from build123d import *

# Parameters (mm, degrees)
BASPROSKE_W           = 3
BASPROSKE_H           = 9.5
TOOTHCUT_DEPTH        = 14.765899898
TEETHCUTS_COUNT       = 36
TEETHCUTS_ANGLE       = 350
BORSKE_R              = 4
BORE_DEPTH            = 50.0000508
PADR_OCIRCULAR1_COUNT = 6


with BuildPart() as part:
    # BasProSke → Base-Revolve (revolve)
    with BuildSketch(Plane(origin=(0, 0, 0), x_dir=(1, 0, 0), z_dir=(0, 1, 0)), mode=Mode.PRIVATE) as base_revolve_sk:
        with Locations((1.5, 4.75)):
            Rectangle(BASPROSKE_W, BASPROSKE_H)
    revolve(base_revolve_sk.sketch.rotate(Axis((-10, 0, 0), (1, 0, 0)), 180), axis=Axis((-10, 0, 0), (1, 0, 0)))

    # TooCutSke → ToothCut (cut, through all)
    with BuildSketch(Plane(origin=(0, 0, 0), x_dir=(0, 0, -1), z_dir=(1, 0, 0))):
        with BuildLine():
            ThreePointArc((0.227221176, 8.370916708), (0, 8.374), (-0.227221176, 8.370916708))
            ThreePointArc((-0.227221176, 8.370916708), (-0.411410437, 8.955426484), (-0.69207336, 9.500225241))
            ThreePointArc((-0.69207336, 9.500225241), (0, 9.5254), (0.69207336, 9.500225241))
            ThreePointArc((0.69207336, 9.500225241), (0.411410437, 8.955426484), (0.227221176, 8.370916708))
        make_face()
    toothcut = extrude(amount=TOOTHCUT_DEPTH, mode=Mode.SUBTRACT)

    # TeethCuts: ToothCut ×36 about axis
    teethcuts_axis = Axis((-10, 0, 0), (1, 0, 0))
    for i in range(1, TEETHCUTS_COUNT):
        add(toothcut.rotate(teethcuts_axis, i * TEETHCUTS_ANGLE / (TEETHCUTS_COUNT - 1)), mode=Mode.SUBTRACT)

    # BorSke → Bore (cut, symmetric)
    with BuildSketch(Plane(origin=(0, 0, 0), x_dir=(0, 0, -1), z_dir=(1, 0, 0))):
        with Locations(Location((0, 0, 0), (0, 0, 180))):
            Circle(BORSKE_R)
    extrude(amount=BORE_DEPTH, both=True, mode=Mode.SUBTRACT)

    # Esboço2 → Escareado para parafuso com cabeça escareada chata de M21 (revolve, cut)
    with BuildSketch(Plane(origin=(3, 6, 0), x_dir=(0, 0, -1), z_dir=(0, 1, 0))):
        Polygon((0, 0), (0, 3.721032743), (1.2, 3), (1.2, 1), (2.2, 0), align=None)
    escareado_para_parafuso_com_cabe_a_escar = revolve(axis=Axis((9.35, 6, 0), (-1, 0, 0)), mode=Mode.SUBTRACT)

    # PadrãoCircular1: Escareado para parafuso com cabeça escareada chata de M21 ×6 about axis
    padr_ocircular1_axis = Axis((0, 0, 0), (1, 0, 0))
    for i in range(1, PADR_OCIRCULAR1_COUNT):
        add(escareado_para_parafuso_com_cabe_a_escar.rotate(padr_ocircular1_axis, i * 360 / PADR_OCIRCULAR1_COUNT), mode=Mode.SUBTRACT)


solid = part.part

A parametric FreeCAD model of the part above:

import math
import FreeCAD as App
import Part
import Sketcher

V = App.Vector
Q = App.Units.Quantity

doc = App.newDocument("Part")
body = doc.addObject("PartDesign::Body", "Body")

# Sketch on XZ plane
sketch1 = body.newObject("Sketcher::SketchObject", "Sketch")
sketch1.AttachmentSupport = (doc.getObject("XZ_Plane"), [""])
sketch1.MapMode = "FlatFace"
sketch1.addGeometry([
    Part.LineSegment(V(0, -9.5, 0), V(0, 0, 0)),
    Part.LineSegment(V(0, 0, 0), V(3, 0, 0)),
    Part.LineSegment(V(3, 0, 0), V(3, -9.5, 0)),
    Part.LineSegment(V(3, -9.5, 0), V(0, -9.5, 0)),
], False)
sketch1.addConstraint([
    Sketcher.Constraint("Coincident", 0, 2, 1, 1),
    Sketcher.Constraint("Coincident", 1, 2, 2, 1),
    Sketcher.Constraint("Coincident", 2, 2, 3, 1),
    Sketcher.Constraint("Coincident", 3, 2, 0, 1),
    Sketcher.Constraint("Vertical", 0),
    Sketcher.Constraint("Horizontal", 1),
    Sketcher.Constraint("Vertical", 2),
    Sketcher.Constraint("Horizontal", 3),
    Sketcher.Constraint("Coincident", 0, 2, -1, 1),
    Sketcher.Constraint("DistanceX", 1, 1, 1, 2, 3.0),
    Sketcher.Constraint("DistanceY", 0, 1, 0, 2, 9.5),
])
revolution = body.newObject("PartDesign::Revolution", "Revolution")
revolution.Profile = sketch1
revolution.ReferenceAxis = (sketch1, ["H_Axis"])
revolution.Angle = 360

# Sketch on YZ plane
sketch2 = body.newObject("Sketcher::SketchObject", "Sketch001")
sketch2.AttachmentSupport = (doc.getObject("YZ_Plane"), [""])
sketch2.MapMode = "FlatFace"
sketch2.addGeometry([
    Part.ArcOfCircle(Part.Circle(V(0, 0, 0), V(0, 0, 1), 8.37), math.radians(-1.55), math.radians(1.55)),
    Part.ArcOfCircle(Part.Circle(V(7.59, -3.74, 0), V(0, 0, 1), 3.6), math.radians(57.86), math.radians(77.39)),
    Part.ArcOfCircle(Part.Circle(V(0, 0, 0), V(0, 0, 1), 9.53), math.radians(-4.17), math.radians(4.17)),
    Part.ArcOfCircle(Part.Circle(V(7.59, 3.74, 0), V(0, 0, 1), 3.6), math.radians(-77.39), math.radians(-57.86)),
], False)
sketch2.addConstraint([
    Sketcher.Constraint("Coincident", 0, 1, 1, 2),
    Sketcher.Constraint("Coincident", 1, 1, 2, 1),
    Sketcher.Constraint("Coincident", 2, 2, 3, 2),
    Sketcher.Constraint("Coincident", 3, 1, 0, 2),
    Sketcher.Constraint("Coincident", 0, 3, -1, 1),
    Sketcher.Constraint("Coincident", 2, 3, -1, 1),
    Sketcher.Constraint("Equal", 1, 3),
    Sketcher.Constraint("Symmetric", 1, 3, 3, 3, -1),
    Sketcher.Constraint("Radius", 1, 3.6),
    Sketcher.Constraint("Radius", 0, 8.373999),
    Sketcher.Constraint("Radius", 2, 9.5254),
    Sketcher.Constraint("DistanceX", 1, 3, 1, 1, 1.915102),
    Sketcher.Constraint("DistanceY", 0, 1, -1, 1, 0.227221),
])
pocket1 = body.newObject("PartDesign::Pocket", "Pocket")
pocket1.Profile = sketch2
pocket1.Type = "ThroughAll"
pocket1.Reversed = True
doc.recompute()

polarpattern = body.newObject("PartDesign::PolarPattern", "PolarPattern")
polarpattern.Originals = [pocket1]
polarpattern.Axis = (doc.getObject("X_Axis"), [""])
polarpattern.Angle = 360
polarpattern.Occurrences = 36
body.Tip = polarpattern

# Sketch on YZ plane
sketch3 = body.newObject("Sketcher::SketchObject", "Sketch002")
sketch3.AttachmentSupport = (doc.getObject("YZ_Plane"), [""])
sketch3.MapMode = "FlatFace"
sketch3.addGeometry(Part.Circle(V(0, 0, 0), V(0, 0, 1), 4), False)
sketch3.addConstraint([
    Sketcher.Constraint("Coincident", 0, 3, -1, 1),
    Sketcher.Constraint("Diameter", 0, 8.0),
])
pocket2 = body.newObject("PartDesign::Pocket", "Pocket001")
pocket2.Profile = sketch3
pocket2.Length = 100.000102
pocket2.Midplane = True

# Sketch on XZ plane
sketch4 = body.newObject("Sketcher::SketchObject", "Sketch003")
sketch4.AttachmentSupport = (doc.getObject("XZ_Plane"), [""])
sketch4.MapMode = "FlatFace"
sketch4.AttachmentOffset = App.Placement(V(0, 0, -6), App.Rotation())
sketch4.addGeometry([
    Part.LineSegment(V(-0.7, 0, 0), V(3, 0, 0)),  # 0
    Part.LineSegment(V(3, 0, 0), V(3, -2.2, 0)),  # 1
    Part.LineSegment(V(3, -2.2, 0), V(2, -1.2, 0)),  # 2
    Part.LineSegment(V(2, -1.2, 0), V(0, -1.2, 0)),  # 3
    Part.LineSegment(V(0, -1.2, 0), V(-0.7, 0, 0)),  # 4
], False)
sketch4.addConstraint([
    Sketcher.Constraint("Coincident", 0, 2, 1, 1),
    Sketcher.Constraint("Coincident", 1, 2, 2, 1),
    Sketcher.Constraint("Coincident", 2, 2, 3, 1),
    Sketcher.Constraint("Coincident", 3, 2, 4, 1),
    Sketcher.Constraint("Coincident", 4, 2, 0, 1),
    Sketcher.Constraint("Horizontal", 0),
    Sketcher.Constraint("Vertical", 1),
    Sketcher.Constraint("Horizontal", 3),
    Sketcher.Constraint("PointOnObject", 0, 2, -1),
    Sketcher.Constraint("PointOnObject", 3, 2, -2),
    Sketcher.Constraint("DistanceX", 3, 2, 3, 1, 2.0),
    Sketcher.Constraint("Angle", 2, Q("135 deg")),
    Sketcher.Constraint("Angle", 4, Q("121 deg")),
    Sketcher.Constraint("DistanceY", 1, 2, 1, 1, 2.2),
    Sketcher.Constraint("DistanceX", -1, 1, 0, 2, 3.0),
])
groove = body.newObject("PartDesign::Groove", "Groove")
groove.Profile = sketch4
groove.ReferenceAxis = (sketch4, ["H_Axis"])
groove.Angle = 360
doc.recompute()

polarpattern2 = body.newObject("PartDesign::PolarPattern", "PolarPattern001")
polarpattern2.Originals = [groove]
polarpattern2.Axis = (doc.getObject("X_Axis"), [""])
polarpattern2.Angle = 360
polarpattern2.Occurrences = 6
body.Tip = polarpattern2

doc.recompute()
